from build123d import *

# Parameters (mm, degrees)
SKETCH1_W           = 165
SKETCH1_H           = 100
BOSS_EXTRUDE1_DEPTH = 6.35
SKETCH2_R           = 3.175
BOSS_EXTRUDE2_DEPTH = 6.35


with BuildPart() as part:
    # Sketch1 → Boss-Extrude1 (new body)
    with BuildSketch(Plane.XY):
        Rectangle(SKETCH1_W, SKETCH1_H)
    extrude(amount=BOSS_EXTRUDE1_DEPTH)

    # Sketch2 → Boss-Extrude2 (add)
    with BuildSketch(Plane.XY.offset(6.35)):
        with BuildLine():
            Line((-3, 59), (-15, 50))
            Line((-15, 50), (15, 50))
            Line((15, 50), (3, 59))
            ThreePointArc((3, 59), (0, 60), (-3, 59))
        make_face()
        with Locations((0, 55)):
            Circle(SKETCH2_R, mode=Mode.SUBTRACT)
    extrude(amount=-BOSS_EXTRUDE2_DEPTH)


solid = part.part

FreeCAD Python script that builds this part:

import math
import FreeCAD as App
import Part
import Sketcher

V = App.Vector
Q = App.Units.Quantity


def add_polygon(sketch, points):
    """Adds a closed chain of lines whose ends are joined by coincident constraints."""
    first, n = sketch.GeometryCount, len(points)
    for a, b in zip(points, points[1:] + points[:1]):
        sketch.addGeometry(Part.LineSegment(App.Vector(*a, 0), App.Vector(*b, 0)), False)
    for i in range(n):
        sketch.addConstraint(Sketcher.Constraint("Coincident", first + i, 2, first + (i + 1) % n, 1))

doc = App.newDocument("Part")
body = doc.addObject("PartDesign::Body", "Body")

sketch1 = body.newObject("Sketcher::SketchObject", "Sketch")
sketch1.AttachmentSupport = (doc.getObject("XY_Plane"), [""])
sketch1.MapMode = "FlatFace"
add_polygon(sketch1, [(-82.5, 50), (-82.5, -50), (82.5, -50), (82.5, 50)])
sketch1.addConstraint([
    Sketcher.Constraint("Vertical", 0),
    Sketcher.Constraint("Horizontal", 1),
    Sketcher.Constraint("Vertical", 2),
    Sketcher.Constraint("Horizontal", 3),
    Sketcher.Constraint("Symmetric", 0, 2, 2, 2, -1, 1),
    Sketcher.Constraint("DistanceX", 1, 1, 1, 2, Q("165 mm")),
    Sketcher.Constraint("DistanceY", 0, 2, 0, 1, Q("100 mm")),
])
pad1 = body.newObject("PartDesign::Pad", "Pad")
pad1.Profile = sketch1
pad1.Length = 6.35

sketch2 = body.newObject("Sketcher::SketchObject", "Sketch001")
sketch2.AttachmentSupport = (doc.getObject("XY_Plane"), [""])
sketch2.MapMode = "FlatFace"
sketch2.AttachmentOffset = App.Placement(V(0, 0, 6.35), App.Rotation())
sketch2.addGeometry([
    Part.LineSegment(V(-3, 59, 0), V(-15, 50, 0)),
    Part.LineSegment(V(-15, 50, 0), V(15, 50, 0)),
    Part.LineSegment(V(15, 50, 0), V(3, 59, 0)),
    Part.ArcOfCircle(Part.Circle(V(0, 55, 0), V(0, 0, 1), 5), math.radians(53.130102), math.radians(126.869898)),
    Part.Circle(V(0, 55, 0), V(0, 0, 1), 3.175),
], False)
sketch2.addConstraint([
    Sketcher.Constraint("Coincident", 0, 2, 1, 1),
    Sketcher.Constraint("Coincident", 1, 2, 2, 1),
    Sketcher.Constraint("Tangent", 2, 2, 3, 1),
    Sketcher.Constraint("Tangent", 3, 2, 0, 1),
    Sketcher.Constraint("Horizontal", 1),
    Sketcher.Constraint("Coincident", 4, 3, 3, 3),
    Sketcher.Constraint("Symmetric", 2, 2, 3, 2, -2),
    Sketcher.Constraint("Radius", 3, Q("5 mm")),
    Sketcher.Constraint("Diameter", 4, Q("6.35 mm")),
    Sketcher.Constraint("DistanceX", 1, 1, 1, 2, Q("30 mm")),
    Sketcher.Constraint("Distance", 0, Q("15 mm")),
    Sketcher.Constraint("DistanceY", -1, 1, 3, 3, Q("55 mm")),
])
pad2 = body.newObject("PartDesign::Pad", "Pad001")
pad2.Profile = sketch2
pad2.Length = 6.35
pad2.Reversed = True

doc.recompute()
